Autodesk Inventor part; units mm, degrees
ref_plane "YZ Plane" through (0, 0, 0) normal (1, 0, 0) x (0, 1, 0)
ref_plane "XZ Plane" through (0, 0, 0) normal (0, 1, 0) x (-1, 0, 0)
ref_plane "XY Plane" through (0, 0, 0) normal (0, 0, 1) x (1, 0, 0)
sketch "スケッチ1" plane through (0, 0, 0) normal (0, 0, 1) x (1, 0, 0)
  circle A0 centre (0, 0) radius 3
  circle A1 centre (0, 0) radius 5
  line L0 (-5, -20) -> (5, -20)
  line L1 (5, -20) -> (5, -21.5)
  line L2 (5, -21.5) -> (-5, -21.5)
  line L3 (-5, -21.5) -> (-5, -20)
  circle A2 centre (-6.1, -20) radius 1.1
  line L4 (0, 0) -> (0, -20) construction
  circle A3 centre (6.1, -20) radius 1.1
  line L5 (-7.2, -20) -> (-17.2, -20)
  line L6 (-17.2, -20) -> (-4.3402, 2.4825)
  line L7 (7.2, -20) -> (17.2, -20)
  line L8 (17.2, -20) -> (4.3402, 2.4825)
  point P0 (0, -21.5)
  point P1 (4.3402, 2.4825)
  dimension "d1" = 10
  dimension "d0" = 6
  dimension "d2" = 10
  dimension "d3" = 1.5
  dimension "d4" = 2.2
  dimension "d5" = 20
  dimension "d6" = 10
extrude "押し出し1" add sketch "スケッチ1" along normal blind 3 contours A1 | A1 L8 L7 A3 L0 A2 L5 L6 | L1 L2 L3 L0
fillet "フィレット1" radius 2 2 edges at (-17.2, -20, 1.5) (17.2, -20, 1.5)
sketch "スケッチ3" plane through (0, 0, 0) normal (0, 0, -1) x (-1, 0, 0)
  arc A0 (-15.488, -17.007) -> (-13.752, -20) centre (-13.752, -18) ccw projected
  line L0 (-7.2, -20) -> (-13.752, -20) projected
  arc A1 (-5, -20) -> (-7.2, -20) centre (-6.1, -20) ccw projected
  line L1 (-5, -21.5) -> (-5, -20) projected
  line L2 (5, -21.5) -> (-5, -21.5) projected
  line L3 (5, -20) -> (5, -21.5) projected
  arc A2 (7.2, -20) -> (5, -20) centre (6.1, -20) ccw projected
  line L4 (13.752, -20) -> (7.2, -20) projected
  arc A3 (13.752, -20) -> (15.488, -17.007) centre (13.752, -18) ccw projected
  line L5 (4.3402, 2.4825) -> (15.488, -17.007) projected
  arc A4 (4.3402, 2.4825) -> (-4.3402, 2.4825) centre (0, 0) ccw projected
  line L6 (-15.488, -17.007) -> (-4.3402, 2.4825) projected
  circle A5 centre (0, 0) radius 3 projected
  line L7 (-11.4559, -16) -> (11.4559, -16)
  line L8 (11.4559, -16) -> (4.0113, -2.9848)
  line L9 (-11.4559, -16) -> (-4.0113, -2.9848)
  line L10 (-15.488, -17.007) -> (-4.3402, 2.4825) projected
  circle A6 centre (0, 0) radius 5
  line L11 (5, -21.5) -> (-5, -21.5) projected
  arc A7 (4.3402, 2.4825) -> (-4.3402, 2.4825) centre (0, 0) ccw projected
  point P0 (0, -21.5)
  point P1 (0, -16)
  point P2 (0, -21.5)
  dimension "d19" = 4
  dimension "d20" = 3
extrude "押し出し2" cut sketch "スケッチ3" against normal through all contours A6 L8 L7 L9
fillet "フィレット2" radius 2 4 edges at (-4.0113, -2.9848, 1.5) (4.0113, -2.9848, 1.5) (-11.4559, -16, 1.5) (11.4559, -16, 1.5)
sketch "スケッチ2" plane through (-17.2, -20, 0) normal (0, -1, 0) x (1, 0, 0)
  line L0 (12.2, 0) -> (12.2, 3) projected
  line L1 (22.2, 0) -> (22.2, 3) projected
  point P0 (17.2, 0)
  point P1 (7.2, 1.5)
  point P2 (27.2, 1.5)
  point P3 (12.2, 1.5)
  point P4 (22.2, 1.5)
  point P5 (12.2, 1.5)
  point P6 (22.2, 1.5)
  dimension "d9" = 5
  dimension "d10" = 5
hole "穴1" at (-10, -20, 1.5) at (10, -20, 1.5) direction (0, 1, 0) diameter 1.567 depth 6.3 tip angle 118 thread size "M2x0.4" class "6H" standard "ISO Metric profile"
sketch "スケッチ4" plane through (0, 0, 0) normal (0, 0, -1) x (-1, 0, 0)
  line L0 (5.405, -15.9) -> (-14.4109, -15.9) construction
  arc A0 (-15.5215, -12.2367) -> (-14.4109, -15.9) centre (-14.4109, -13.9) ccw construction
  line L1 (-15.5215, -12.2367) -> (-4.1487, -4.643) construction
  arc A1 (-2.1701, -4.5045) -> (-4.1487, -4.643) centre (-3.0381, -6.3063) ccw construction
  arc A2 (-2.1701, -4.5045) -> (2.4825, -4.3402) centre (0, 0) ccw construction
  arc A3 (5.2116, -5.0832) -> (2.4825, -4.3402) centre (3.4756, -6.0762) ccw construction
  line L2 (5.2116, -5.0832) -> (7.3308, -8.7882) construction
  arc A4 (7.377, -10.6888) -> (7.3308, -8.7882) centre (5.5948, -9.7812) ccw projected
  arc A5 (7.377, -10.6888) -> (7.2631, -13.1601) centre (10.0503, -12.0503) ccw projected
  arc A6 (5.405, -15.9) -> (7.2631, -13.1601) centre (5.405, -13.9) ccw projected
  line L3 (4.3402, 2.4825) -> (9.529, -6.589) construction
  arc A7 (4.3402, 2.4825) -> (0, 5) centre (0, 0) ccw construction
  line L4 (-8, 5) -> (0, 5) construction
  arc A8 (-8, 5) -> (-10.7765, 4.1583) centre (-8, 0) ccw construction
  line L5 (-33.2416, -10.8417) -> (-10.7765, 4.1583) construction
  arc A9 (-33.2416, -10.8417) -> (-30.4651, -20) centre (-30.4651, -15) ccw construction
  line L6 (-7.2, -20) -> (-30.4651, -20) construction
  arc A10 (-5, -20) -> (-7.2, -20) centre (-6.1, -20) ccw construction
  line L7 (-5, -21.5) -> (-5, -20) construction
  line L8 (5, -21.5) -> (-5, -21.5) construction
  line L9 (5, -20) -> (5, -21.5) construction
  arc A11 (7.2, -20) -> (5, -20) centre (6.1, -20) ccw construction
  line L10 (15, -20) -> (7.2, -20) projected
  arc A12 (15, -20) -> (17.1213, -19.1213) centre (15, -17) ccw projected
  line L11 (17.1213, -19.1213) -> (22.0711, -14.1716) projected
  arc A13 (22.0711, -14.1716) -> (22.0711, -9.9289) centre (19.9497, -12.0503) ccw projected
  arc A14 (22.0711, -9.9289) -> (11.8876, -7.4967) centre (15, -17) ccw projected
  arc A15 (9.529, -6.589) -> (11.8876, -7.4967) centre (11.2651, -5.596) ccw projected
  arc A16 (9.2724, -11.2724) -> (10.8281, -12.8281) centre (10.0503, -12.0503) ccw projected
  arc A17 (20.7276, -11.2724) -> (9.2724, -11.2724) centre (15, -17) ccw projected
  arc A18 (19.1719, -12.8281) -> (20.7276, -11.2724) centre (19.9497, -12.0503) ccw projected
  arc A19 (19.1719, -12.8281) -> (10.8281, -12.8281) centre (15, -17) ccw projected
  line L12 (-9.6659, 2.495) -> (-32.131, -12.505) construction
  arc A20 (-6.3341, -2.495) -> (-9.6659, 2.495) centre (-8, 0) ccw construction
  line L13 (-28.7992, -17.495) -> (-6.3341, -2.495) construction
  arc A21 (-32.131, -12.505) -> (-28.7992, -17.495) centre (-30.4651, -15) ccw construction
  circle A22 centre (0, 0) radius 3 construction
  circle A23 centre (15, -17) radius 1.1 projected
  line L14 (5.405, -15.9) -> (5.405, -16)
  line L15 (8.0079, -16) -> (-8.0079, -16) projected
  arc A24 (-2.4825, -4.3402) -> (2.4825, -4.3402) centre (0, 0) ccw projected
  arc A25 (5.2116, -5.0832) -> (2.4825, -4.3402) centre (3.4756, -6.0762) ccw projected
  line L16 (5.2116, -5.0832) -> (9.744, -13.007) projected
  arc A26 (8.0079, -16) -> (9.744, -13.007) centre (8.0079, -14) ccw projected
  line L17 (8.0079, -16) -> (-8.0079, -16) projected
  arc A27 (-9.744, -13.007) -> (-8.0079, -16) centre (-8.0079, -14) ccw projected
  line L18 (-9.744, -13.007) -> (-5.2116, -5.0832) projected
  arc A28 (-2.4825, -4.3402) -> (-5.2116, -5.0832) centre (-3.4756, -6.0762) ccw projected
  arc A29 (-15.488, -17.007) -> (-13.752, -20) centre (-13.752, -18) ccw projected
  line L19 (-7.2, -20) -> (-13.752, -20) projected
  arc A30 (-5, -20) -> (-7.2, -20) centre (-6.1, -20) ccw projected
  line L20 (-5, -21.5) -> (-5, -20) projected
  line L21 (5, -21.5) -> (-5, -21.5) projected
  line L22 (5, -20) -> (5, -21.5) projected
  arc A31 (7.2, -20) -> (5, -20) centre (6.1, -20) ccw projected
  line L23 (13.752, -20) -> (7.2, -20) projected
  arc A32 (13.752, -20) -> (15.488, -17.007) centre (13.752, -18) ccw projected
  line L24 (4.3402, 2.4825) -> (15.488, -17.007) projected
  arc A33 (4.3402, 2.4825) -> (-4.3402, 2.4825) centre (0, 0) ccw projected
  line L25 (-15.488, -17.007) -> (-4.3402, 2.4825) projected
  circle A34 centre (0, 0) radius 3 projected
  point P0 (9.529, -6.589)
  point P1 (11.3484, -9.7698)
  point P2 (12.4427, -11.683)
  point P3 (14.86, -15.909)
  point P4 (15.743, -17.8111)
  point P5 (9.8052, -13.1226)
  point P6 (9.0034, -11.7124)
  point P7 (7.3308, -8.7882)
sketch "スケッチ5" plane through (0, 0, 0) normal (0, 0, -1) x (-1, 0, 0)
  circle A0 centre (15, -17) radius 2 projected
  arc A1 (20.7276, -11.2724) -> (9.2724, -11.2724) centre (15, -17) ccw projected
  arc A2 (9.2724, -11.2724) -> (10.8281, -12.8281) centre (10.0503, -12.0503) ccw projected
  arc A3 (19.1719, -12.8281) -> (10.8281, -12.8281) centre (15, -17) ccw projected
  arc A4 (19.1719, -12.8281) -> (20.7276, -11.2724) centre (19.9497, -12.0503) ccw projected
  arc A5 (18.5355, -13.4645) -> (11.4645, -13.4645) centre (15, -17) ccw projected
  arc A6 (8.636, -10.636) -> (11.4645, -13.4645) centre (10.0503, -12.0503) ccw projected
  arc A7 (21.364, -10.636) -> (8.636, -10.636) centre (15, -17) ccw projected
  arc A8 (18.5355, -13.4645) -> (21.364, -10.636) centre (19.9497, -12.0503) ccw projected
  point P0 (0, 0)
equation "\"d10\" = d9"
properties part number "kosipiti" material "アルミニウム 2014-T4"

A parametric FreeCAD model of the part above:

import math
import FreeCAD as App
import Part
import Sketcher
from FreeCAD import Vector
Q = App.Units.Quantity


def edges_at(feature, points):
    """Names of the edges that pass closest to the given points."""
    edges = feature.Shape.Edges
    near = lambda p: min(range(len(edges)), key=lambda i: edges[i].distToShape(Part.Vertex(*p))[0])
    return sorted({f"Edge{near(p) + 1}" for p in points})

doc = App.newDocument("Part")
body = doc.addObject("PartDesign::Body", "Body")

# Sketch on XY plane
sketch1 = body.newObject("Sketcher::SketchObject", "Sketch")
sketch1.AttachmentSupport = (doc.getObject("XY_Plane"), [""])
sketch1.MapMode = "FlatFace"
sketch1.addGeometry([
    Part.ArcOfCircle(Part.Circle(Vector(0, 0, 0), Vector(0, 0, 1), 5), math.radians(30), math.radians(150)),  # 0
    Part.LineSegment(Vector(-4.3, 2.5, 0), Vector(-17.2, -20, 0)),  # 1
    Part.LineSegment(Vector(-17.2, -20, 0), Vector(-7.2, -20, 0)),  # 2
    Part.ArcOfCircle(Part.Circle(Vector(-6.1, -20, 0), Vector(0, 0, 1), 1.1), math.radians(0), math.radians(180)),  # 3
    Part.LineSegment(Vector(-5, -20, 0), Vector(-5, -21.5, 0)),  # 4
    Part.LineSegment(Vector(-5, -21.5, 0), Vector(5, -21.5, 0)),  # 5
    Part.LineSegment(Vector(5, -21.5, 0), Vector(5, -20, 0)),  # 6
    Part.ArcOfCircle(Part.Circle(Vector(6.1, -20, 0), Vector(0, 0, 1), 1.1), math.radians(0), math.radians(180)),  # 7
    Part.LineSegment(Vector(7.2, -20, 0), Vector(17.2, -20, 0)),  # 8
    Part.LineSegment(Vector(17.2, -20, 0), Vector(4.3, 2.5, 0)),  # 9
    Part.Circle(Vector(0, 0, 0), Vector(0, 0, 1), 3),  # 10
], False)
sketch1.addConstraint([
    Sketcher.Constraint("Tangent", 0, 2, 1, 1),
    Sketcher.Constraint("Coincident", 1, 2, 2, 1),
    Sketcher.Constraint("Coincident", 2, 2, 3, 2),
    Sketcher.Constraint("Tangent", 3, 1, 4, 1),
    Sketcher.Constraint("Coincident", 4, 2, 5, 1),
    Sketcher.Constraint("Coincident", 5, 2, 6, 1),
    Sketcher.Constraint("Tangent", 6, 2, 7, 2),
    Sketcher.Constraint("Coincident", 7, 1, 8, 1),
    Sketcher.Constraint("Coincident", 8, 2, 9, 1),
    Sketcher.Constraint("Tangent", 9, 2, 0, 1),
    Sketcher.Constraint("Horizontal", 2),
    Sketcher.Constraint("Vertical", 4),
    Sketcher.Constraint("Horizontal", 5),
    Sketcher.Constraint("Vertical", 6),
    Sketcher.Constraint("Horizontal", 8),
    Sketcher.Constraint("Coincident", 0, 3, -1, 1),
    Sketcher.Constraint("Coincident", 10, 3, -1, 1),
    Sketcher.Constraint("Equal", 3, 7),
    Sketcher.Constraint("Symmetric", 3, 3, 7, 3, -2),
    Sketcher.Constraint("Symmetric", 1, 2, 8, 2, -2),
    Sketcher.Constraint("Horizontal", 7, 3, 1, 2),
    Sketcher.Constraint("Equal", 2, 5),
    Sketcher.Constraint("Diameter", 10, 6.0),
    Sketcher.Constraint("Radius", 0, 5.0),
    Sketcher.Constraint("Radius", 3, 1.1),
    Sketcher.Constraint("DistanceX", 2, 1, 2, 2, 10.0),
    Sketcher.Constraint("DistanceY", 4, 2, 4, 1, 1.5),
    Sketcher.Constraint("DistanceY", 3, 3, -1, 1, 20.0),
])
pad1 = body.newObject("PartDesign::Pad", "Pad")
pad1.Profile = sketch1
pad1.Length = 3
doc.recompute()

fillet = body.newObject("PartDesign::Fillet", "Fillet")
fillet.Base = (pad1, edges_at(pad1, [(-17.2, -20, 1.5), (17.2, -20, 1.5)]))
fillet.Radius = 2

# Sketch on XY plane
sketch2 = body.newObject("Sketcher::SketchObject", "Sketch001")
sketch2.AttachmentSupport = (doc.getObject("XY_Plane"), [""])
sketch2.MapMode = "FlatFace"
sketch2.addGeometry([
    Part.ArcOfCircle(Part.Circle(Vector(0, 0, 0), Vector(0, 0, 1), 5), math.radians(-143), math.radians(-37)),
    Part.LineSegment(Vector(4, -3, 0), Vector(11, -16, 0)),
    Part.LineSegment(Vector(11, -16, 0), Vector(-11, -16, 0)),
    Part.LineSegment(Vector(-11, -16, 0), Vector(-4, -3, 0)),
], False)
sketch2.addConstraint([
    Sketcher.Constraint("Coincident", 0, 2, 1, 1),
    Sketcher.Constraint("Coincident", 1, 2, 2, 1),
    Sketcher.Constraint("Coincident", 2, 2, 3, 1),
    Sketcher.Constraint("Coincident", 3, 2, 0, 1),
    Sketcher.Constraint("Horizontal", 2),
    Sketcher.Constraint("Coincident", 0, 3, -1, 1),
    Sketcher.Constraint("Horizontal", 0, 2, 3, 2),
    Sketcher.Constraint("Equal", 1, 3),
    Sketcher.Constraint("Radius", 0, 5.0),
    Sketcher.Constraint("DistanceY", 1, 2, -1, 1, 16.0),
    Sketcher.Constraint("Angle", 1, Q("-60.2308 deg")),
    Sketcher.Constraint("Distance", 1, 14.994),
])
pocket1 = body.newObject("PartDesign::Pocket", "Pocket")
pocket1.Profile = sketch2
pocket1.Type = "ThroughAll"
pocket1.Reversed = True
doc.recompute()

fillet2 = body.newObject("PartDesign::Fillet", "Fillet001")
fillet2.Base = (pocket1, edges_at(pocket1, [
    (-4.011, -2.985, 1.5),
    (4.011, -2.985, 1.5),
    (-11.456, -16, 1.5),
    (11.456, -16, 1.5),
]))
fillet2.Radius = 2

# Sketch on XZ plane
sketch3 = body.newObject("Sketcher::SketchObject", "Sketch002")
sketch3.AttachmentSupport = (doc.getObject("XZ_Plane"), [""])
sketch3.MapMode = "FlatFace"
sketch3.AttachmentOffset = App.Placement(Vector(0, 0, 20), App.Rotation())
sketch3.addGeometry([
    Part.Circle(Vector(-10, 1.5, 0), Vector(0, 0, 1), 0.8),
    Part.Circle(Vector(10, 1.5, 0), Vector(0, 0, 1), 0.8),
], False)
sketch3.addConstraint([
    Sketcher.Constraint("Equal", 0, 1),
    Sketcher.Constraint("Symmetric", 0, 3, 1, 3, -2),
    Sketcher.Constraint("Diameter", 0, 1.567),
    Sketcher.Constraint("DistanceX", 0, 3, -1, 1, 10.0),
    Sketcher.Constraint("DistanceY", -1, 1, 0, 3, 1.5),
])
doc.recompute()
hole = body.newObject("PartDesign::Hole", "Hole")
hole.Profile = sketch3
hole.ThreadType = "None"
hole.Diameter = 1.567
hole.DepthType = "Dimension"
hole.Depth = 6.3
hole.DrillPoint = "Angled"
hole.DrillPointAngle = 118

doc.recompute()
